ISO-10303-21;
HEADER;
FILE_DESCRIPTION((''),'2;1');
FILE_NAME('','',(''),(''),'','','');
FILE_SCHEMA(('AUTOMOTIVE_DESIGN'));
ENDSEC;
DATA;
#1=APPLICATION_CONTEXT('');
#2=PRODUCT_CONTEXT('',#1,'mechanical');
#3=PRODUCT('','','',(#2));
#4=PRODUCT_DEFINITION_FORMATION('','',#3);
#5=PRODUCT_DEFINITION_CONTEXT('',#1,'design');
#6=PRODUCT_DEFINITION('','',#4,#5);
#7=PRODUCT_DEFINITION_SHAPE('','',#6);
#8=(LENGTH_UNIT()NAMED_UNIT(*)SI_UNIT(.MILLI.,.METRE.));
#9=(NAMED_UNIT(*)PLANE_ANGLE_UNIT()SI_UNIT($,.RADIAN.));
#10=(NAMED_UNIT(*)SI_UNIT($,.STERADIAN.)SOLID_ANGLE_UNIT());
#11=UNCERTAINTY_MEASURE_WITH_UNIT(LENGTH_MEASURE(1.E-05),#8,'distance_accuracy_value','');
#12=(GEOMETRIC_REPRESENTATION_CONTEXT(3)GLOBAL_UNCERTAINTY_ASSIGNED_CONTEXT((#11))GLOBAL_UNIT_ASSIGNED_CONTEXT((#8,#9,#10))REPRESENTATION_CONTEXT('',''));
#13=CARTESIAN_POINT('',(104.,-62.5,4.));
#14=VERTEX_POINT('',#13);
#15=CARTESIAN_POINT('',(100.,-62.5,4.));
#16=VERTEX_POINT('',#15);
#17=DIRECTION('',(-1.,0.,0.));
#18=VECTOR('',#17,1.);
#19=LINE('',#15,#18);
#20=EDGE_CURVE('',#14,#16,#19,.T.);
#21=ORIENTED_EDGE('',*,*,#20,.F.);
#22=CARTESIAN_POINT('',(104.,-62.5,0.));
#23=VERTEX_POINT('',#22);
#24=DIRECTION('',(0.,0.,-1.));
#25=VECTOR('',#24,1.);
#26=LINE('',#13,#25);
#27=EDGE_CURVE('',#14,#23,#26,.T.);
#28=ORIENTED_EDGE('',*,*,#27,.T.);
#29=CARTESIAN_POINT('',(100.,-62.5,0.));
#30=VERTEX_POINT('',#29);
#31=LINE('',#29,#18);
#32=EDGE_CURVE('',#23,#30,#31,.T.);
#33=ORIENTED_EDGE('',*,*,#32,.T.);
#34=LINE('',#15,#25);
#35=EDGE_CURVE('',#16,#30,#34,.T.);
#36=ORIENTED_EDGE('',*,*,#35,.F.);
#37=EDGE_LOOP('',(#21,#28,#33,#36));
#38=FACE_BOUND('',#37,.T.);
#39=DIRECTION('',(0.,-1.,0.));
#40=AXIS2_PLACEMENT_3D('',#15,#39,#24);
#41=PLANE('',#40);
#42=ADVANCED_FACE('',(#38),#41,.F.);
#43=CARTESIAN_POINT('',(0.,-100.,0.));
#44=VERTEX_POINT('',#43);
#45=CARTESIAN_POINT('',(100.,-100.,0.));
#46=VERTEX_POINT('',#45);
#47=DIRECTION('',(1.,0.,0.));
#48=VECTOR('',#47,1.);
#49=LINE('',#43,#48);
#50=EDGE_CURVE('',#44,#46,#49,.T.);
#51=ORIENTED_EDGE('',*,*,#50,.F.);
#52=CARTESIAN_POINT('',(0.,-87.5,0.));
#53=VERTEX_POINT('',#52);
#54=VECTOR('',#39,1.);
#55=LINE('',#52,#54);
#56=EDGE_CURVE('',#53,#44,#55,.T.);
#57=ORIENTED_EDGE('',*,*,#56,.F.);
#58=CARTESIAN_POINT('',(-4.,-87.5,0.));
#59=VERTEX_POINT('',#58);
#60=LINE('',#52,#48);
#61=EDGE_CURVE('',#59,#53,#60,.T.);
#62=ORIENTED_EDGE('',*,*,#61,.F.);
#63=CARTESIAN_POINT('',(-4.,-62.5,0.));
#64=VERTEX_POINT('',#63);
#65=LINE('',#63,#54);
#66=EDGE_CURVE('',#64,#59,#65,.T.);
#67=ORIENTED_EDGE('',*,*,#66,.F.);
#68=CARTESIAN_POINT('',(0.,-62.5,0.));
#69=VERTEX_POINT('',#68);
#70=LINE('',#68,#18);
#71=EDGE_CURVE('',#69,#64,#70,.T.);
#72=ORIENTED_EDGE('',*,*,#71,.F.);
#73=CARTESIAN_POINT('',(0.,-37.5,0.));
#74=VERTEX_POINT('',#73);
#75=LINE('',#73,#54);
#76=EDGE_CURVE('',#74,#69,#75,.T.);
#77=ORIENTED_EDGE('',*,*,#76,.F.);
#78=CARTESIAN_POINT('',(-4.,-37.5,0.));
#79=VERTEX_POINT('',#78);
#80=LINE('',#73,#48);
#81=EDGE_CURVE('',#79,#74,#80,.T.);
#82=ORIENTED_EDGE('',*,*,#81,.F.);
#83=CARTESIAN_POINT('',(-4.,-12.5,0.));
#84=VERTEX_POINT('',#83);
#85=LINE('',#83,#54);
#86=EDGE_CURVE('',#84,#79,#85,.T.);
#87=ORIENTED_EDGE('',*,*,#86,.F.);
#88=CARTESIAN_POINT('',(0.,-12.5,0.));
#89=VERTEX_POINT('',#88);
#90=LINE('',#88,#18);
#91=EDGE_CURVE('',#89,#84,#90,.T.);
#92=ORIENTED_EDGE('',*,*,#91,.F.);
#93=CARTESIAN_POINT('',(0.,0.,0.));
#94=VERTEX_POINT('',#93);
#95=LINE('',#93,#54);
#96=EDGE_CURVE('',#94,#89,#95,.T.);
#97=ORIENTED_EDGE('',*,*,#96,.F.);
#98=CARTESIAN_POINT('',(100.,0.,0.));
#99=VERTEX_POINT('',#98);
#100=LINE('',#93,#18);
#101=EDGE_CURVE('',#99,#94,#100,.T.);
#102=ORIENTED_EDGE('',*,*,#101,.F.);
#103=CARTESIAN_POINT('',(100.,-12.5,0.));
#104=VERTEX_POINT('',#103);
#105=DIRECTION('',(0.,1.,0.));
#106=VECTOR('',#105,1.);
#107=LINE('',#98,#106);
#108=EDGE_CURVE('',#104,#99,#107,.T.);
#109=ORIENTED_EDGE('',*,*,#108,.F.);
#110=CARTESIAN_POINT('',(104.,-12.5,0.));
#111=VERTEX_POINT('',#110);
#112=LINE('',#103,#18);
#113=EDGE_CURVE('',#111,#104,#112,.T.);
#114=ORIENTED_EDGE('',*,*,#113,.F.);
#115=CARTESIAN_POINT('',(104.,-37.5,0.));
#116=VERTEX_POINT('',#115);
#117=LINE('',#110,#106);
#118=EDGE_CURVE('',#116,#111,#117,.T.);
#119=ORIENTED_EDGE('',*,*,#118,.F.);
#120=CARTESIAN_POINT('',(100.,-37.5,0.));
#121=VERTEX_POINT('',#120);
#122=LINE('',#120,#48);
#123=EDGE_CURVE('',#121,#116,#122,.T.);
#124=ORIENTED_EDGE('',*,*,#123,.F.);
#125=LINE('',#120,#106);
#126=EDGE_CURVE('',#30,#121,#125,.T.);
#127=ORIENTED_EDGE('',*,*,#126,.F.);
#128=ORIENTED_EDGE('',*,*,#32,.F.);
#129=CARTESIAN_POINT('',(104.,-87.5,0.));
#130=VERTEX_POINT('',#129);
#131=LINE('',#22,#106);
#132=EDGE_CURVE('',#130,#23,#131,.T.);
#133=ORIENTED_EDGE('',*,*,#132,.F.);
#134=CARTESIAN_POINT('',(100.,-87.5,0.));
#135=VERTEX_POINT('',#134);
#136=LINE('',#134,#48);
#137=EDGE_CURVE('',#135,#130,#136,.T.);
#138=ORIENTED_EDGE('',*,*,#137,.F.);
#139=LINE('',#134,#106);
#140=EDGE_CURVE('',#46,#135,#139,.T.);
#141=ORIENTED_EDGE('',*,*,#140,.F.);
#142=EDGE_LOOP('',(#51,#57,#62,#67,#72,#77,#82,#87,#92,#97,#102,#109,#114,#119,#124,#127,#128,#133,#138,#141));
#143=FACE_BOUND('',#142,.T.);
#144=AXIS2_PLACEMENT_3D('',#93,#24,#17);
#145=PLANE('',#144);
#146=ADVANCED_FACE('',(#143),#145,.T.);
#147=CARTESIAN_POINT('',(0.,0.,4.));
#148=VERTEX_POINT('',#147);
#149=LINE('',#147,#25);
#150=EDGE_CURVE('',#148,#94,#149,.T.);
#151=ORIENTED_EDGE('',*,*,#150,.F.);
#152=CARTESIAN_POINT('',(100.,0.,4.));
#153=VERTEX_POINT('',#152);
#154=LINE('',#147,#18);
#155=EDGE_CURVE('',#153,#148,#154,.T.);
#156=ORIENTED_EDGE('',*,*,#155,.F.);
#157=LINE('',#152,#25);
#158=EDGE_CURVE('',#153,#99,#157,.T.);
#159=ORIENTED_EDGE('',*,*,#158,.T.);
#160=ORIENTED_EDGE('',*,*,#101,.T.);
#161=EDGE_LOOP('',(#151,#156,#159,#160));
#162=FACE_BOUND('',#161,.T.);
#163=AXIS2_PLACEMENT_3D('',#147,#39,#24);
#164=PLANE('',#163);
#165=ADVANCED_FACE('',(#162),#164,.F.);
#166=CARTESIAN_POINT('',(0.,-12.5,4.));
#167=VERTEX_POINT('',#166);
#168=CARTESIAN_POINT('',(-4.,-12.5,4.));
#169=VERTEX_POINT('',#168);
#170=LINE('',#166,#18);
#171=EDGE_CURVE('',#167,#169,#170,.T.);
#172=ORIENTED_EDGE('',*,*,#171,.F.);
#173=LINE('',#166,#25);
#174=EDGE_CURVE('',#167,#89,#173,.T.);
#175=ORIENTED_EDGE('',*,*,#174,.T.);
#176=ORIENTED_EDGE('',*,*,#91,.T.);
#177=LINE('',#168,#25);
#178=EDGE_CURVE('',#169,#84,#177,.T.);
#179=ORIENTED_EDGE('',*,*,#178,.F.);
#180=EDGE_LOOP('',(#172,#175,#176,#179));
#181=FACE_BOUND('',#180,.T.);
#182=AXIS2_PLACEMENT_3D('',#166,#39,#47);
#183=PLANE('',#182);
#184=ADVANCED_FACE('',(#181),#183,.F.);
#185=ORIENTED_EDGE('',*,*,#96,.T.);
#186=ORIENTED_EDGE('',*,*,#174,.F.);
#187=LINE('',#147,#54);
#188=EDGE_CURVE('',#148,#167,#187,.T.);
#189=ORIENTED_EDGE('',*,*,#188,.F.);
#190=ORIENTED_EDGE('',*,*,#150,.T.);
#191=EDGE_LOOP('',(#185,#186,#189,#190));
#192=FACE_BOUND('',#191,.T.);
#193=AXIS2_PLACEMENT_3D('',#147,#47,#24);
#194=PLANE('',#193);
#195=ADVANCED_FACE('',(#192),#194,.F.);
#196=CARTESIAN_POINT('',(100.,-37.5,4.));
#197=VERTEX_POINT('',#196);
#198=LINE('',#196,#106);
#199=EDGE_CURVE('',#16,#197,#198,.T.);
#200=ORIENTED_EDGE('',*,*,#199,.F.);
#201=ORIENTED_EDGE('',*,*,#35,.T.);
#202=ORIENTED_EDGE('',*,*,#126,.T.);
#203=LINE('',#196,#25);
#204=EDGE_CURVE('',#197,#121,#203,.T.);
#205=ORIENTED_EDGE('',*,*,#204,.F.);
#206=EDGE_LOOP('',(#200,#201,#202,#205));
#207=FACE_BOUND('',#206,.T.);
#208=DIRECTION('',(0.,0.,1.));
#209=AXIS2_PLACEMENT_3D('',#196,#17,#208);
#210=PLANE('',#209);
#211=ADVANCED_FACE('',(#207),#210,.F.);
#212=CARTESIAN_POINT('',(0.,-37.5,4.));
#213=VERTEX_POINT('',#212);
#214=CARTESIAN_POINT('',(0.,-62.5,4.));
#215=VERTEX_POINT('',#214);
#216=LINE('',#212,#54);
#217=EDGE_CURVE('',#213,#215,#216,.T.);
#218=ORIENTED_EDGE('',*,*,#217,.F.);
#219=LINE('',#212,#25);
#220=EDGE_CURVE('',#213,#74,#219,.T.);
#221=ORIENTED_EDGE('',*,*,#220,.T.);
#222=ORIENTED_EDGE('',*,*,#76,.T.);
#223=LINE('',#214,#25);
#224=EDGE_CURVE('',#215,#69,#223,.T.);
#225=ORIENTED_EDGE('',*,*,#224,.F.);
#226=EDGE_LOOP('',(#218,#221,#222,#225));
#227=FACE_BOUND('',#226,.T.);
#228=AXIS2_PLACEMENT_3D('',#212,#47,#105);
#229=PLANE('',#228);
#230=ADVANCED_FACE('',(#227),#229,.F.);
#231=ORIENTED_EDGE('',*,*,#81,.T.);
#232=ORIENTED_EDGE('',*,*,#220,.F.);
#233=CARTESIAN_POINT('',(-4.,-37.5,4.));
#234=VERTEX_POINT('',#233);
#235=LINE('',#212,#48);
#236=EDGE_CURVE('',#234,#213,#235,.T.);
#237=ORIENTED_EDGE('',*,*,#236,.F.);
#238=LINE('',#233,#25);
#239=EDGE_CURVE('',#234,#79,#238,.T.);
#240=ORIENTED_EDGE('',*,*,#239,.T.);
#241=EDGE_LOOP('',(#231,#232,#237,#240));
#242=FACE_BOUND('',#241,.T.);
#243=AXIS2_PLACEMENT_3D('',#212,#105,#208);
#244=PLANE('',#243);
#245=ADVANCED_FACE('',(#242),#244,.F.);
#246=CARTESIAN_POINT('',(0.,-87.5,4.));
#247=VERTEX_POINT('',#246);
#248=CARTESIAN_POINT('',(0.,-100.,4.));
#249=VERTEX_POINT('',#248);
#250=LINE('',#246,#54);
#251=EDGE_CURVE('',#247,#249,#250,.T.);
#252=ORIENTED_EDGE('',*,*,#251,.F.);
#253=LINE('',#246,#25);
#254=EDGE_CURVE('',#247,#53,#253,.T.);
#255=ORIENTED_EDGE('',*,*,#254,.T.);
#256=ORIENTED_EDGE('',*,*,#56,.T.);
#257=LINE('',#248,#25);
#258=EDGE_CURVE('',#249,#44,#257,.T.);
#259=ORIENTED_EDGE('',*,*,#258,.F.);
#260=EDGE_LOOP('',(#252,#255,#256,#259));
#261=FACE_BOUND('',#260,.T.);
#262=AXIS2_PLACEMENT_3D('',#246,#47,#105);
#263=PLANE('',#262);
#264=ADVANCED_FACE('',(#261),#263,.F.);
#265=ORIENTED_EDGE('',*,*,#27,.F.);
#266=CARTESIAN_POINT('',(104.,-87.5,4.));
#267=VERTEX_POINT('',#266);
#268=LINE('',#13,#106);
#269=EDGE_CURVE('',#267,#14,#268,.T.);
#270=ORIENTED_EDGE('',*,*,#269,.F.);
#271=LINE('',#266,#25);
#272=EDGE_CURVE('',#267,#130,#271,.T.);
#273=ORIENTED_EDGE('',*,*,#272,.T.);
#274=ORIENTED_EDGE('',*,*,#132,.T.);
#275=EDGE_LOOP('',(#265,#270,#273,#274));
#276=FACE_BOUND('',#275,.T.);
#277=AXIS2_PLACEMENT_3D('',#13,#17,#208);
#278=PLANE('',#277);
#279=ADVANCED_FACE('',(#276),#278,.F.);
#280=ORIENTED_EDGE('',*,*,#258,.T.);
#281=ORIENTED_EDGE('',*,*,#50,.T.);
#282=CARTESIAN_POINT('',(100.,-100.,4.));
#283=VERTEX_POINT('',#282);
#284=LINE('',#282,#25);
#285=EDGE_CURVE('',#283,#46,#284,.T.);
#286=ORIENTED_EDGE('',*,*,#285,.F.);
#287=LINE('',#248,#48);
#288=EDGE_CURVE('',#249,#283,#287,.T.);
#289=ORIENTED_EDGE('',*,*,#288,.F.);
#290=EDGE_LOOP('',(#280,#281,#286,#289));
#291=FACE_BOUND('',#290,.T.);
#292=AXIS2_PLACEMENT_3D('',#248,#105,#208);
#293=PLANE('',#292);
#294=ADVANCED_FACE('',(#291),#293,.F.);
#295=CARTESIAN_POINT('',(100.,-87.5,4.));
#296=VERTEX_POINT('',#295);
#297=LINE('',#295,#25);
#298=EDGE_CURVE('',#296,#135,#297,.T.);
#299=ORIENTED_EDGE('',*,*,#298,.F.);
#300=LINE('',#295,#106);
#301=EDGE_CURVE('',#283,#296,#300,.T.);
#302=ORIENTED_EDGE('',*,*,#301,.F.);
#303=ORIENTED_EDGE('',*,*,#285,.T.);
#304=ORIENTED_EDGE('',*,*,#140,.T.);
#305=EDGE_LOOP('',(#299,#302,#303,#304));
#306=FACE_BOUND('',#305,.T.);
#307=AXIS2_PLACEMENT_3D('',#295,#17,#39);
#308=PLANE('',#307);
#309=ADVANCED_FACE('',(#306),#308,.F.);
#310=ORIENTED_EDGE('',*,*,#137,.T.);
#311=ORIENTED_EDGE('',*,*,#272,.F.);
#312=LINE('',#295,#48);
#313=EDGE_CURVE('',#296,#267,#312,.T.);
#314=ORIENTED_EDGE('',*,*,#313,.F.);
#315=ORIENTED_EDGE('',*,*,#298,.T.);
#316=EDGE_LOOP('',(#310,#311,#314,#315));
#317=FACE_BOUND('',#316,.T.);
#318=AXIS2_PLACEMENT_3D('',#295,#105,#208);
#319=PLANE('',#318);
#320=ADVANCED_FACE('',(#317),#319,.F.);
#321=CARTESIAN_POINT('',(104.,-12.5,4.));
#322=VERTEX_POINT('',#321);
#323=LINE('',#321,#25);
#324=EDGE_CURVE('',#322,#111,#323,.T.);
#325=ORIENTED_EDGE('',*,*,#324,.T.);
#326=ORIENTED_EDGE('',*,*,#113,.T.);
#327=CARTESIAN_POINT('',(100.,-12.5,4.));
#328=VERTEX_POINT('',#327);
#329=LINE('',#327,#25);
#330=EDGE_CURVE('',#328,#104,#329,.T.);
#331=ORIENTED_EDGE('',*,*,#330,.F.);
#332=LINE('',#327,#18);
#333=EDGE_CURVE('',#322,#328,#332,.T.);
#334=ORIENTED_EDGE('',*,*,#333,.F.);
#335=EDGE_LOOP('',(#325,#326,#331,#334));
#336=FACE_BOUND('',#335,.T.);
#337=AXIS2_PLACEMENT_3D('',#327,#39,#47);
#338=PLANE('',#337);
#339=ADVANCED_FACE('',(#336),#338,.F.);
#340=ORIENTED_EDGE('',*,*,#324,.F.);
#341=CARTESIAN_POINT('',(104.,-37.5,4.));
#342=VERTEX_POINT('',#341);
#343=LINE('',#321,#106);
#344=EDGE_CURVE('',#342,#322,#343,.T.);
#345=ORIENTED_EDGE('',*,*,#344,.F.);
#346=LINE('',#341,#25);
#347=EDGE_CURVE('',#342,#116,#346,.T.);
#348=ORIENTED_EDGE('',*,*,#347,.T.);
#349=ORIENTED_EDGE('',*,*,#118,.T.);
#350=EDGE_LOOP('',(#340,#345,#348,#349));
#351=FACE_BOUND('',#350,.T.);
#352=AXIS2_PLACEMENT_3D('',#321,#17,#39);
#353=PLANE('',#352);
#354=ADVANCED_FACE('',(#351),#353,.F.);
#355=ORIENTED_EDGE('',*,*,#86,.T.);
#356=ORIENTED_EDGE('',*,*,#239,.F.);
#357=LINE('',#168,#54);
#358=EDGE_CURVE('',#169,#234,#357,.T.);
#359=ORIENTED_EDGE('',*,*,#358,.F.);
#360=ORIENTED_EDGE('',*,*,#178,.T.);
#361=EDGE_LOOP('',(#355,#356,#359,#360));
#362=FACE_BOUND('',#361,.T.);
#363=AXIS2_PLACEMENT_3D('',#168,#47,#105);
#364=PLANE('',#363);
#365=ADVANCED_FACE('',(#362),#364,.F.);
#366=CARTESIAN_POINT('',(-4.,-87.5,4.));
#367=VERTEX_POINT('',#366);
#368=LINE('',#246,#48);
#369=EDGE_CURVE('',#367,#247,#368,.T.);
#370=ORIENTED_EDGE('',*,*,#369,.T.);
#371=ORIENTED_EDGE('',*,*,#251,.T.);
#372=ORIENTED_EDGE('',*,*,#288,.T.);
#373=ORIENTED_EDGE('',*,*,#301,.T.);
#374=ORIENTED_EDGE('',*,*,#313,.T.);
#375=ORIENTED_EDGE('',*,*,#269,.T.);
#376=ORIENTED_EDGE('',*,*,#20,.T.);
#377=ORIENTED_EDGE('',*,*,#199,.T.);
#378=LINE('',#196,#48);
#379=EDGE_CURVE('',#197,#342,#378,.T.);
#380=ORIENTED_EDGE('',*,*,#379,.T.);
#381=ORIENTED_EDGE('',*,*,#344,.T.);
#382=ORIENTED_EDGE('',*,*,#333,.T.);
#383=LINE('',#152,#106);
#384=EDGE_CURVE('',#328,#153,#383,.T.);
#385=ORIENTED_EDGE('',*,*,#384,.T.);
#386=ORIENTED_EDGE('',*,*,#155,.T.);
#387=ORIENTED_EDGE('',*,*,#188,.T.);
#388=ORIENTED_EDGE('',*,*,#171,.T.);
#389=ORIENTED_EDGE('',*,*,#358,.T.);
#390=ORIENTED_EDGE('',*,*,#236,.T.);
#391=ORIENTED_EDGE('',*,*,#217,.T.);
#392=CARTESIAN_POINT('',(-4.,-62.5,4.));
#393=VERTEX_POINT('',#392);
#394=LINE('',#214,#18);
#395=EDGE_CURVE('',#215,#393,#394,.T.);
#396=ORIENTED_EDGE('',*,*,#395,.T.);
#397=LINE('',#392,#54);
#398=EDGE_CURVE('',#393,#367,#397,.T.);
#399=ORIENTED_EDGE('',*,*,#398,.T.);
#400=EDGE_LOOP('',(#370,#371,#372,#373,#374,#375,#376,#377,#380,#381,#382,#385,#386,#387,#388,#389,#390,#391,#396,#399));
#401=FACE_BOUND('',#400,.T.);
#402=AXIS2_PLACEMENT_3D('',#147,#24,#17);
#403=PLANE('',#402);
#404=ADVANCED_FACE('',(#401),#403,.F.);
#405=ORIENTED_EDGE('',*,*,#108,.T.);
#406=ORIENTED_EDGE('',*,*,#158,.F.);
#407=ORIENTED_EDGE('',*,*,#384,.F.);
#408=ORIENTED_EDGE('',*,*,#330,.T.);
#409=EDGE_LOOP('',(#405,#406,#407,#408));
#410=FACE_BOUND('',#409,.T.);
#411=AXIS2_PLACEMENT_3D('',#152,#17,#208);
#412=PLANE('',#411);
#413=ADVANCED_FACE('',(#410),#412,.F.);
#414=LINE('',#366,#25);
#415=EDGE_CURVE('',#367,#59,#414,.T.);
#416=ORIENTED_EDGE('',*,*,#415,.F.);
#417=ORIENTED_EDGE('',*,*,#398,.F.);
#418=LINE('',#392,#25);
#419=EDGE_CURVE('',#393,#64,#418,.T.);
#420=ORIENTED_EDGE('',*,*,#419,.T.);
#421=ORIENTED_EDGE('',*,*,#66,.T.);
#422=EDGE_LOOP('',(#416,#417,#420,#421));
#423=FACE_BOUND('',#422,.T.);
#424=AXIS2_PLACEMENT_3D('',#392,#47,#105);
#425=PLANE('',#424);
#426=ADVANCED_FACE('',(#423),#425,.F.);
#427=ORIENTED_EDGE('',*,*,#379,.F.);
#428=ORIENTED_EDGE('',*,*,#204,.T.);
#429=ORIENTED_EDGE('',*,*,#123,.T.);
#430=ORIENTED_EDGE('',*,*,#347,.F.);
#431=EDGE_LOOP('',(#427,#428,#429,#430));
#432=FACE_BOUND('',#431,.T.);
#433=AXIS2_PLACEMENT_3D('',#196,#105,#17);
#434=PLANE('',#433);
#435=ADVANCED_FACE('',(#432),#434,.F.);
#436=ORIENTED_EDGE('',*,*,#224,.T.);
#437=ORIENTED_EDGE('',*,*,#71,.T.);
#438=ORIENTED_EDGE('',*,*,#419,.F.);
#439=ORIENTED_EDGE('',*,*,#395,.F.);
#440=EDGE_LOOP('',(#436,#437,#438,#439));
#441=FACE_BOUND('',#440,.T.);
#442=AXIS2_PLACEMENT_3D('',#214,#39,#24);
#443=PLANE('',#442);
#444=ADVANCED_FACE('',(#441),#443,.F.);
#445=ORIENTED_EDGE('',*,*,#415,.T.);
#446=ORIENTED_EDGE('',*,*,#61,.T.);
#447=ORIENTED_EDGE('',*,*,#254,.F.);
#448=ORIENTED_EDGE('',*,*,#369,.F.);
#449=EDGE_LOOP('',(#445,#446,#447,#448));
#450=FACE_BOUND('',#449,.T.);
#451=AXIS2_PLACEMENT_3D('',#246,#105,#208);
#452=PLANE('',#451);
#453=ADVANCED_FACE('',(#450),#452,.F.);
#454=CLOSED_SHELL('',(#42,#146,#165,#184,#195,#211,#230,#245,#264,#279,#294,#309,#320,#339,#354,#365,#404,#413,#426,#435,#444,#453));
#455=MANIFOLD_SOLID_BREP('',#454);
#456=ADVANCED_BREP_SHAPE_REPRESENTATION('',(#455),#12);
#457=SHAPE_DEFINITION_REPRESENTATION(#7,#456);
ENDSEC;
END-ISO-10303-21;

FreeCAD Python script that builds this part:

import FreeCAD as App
import Part
import Sketcher
Q = App.Units.Quantity


def add_polygon(sketch, points):
    """Adds a closed chain of lines whose ends are joined by coincident constraints."""
    first, n = sketch.GeometryCount, len(points)
    for a, b in zip(points, points[1:] + points[:1]):
        sketch.addGeometry(Part.LineSegment(App.Vector(*a, 0), App.Vector(*b, 0)), False)
    for i in range(n):
        sketch.addConstraint(Sketcher.Constraint("Coincident", first + i, 2, first + (i + 1) % n, 1))

doc = App.newDocument("Part")
params = doc.addObject("Spreadsheet::Sheet", "Params")
for row, (alias, value) in enumerate([
    ("sketch1_width", "100 mm"),
    ("sketch1_width2", "4 mm"),
    ("sketch1_height", "25 mm"),
    ("sketch1_height2", "12.5 mm"),
    ("pad1_length", "4 mm"),
], start=1):
    params.set(f"A{row}", alias)
    params.set(f"B{row}", "=" + value)
    params.setAlias(f"B{row}", alias)

body = doc.addObject("PartDesign::Body", "Body")

# Sketch on XY plane
sketch1 = doc.addObject("Sketcher::SketchObject", "Sketch")
body.addObject(sketch1)
sketch1.AttachmentSupport = (doc.XY_Plane, [""])
sketch1.MapMode = "FlatFace"
add_polygon(sketch1, [(100, 0), (0, 0), (0, -12.5), (-4, -12.5), (-4, -37.5), (0, -37.5), (0, -62.5), (-4, -62.5), (-4, -87.5), (0, -87.5), (0, -100), (100, -100), (100, -87.5), (104, -87.5), (104, -62.5), (100, -62.5), (100, -37.5), (104, -37.5), (104, -12.5), (100, -12.5)])  # lines 0-19
sketch1.addConstraint(Sketcher.Constraint("Horizontal", 0))
sketch1.addConstraint(Sketcher.Constraint("Vertical", 1))
sketch1.addConstraint(Sketcher.Constraint("Horizontal", 2))
sketch1.addConstraint(Sketcher.Constraint("Vertical", 3))
sketch1.addConstraint(Sketcher.Constraint("Horizontal", 4))
sketch1.addConstraint(Sketcher.Constraint("Vertical", 5))
sketch1.addConstraint(Sketcher.Constraint("Horizontal", 6))
sketch1.addConstraint(Sketcher.Constraint("Vertical", 7))
sketch1.addConstraint(Sketcher.Constraint("Horizontal", 8))
sketch1.addConstraint(Sketcher.Constraint("Vertical", 9))
sketch1.addConstraint(Sketcher.Constraint("Horizontal", 10))
sketch1.addConstraint(Sketcher.Constraint("Vertical", 11))
sketch1.addConstraint(Sketcher.Constraint("Horizontal", 12))
sketch1.addConstraint(Sketcher.Constraint("Vertical", 13))
sketch1.addConstraint(Sketcher.Constraint("Horizontal", 14))
sketch1.addConstraint(Sketcher.Constraint("Vertical", 15))
sketch1.addConstraint(Sketcher.Constraint("Horizontal", 16))
sketch1.addConstraint(Sketcher.Constraint("Vertical", 17))
sketch1.addConstraint(Sketcher.Constraint("Horizontal", 18))
sketch1.addConstraint(Sketcher.Constraint("Vertical", 19))
sketch1.addConstraint(Sketcher.Constraint("Coincident", 0, 2, -1, 1))
sketch1.addConstraint(Sketcher.Constraint("PointOnObject", 4, 2, -2))
sketch1.addConstraint(Sketcher.Constraint("PointOnObject", 8, 2, -2))
sketch1.addConstraint(Sketcher.Constraint("Horizontal", 8, 2, 11, 2))
sketch1.addConstraint(Sketcher.Constraint("Horizontal", 6, 2, 13, 2))
sketch1.addConstraint(Sketcher.Constraint("Horizontal", 4, 2, 15, 2))
sketch1.addConstraint(Sketcher.Constraint("Horizontal", 2, 2, 17, 2))
sketch1.addConstraint(Sketcher.Constraint("Vertical", 3, 2, 6, 2))
sketch1.addConstraint(Sketcher.Constraint("Vertical", 11, 2, 14, 2))
sketch1.addConstraint(Sketcher.Constraint("Vertical", 13, 2, 16, 2))
sketch1.addConstraint(Sketcher.Constraint("Vertical", 15, 2, 18, 2))
sketch1.addConstraint(Sketcher.Constraint("Equal", 8, 12))
sketch1.addConstraint(Sketcher.Constraint("Equal", 3, 5))
sketch1.addConstraint(Sketcher.Constraint("Equal", 5, 7))
sketch1.addConstraint(Sketcher.Constraint("Equal", 1, 9))
sketch1.addConstraint(Sketcher.Constraint("DistanceX", 0, 2, 0, 1, Q("100 mm")))
sketch1.addConstraint(Sketcher.Constraint("DistanceX", 2, 2, 2, 1, Q("4 mm")))
sketch1.addConstraint(Sketcher.Constraint("DistanceY", 3, 2, 3, 1, Q("25 mm")))
sketch1.addConstraint(Sketcher.Constraint("DistanceY", 1, 2, 1, 1, Q("12.5 mm")))
sketch1.setExpression("Constraints[55]", "Params.sketch1_width")
sketch1.setExpression("Constraints[56]", "Params.sketch1_width2")
sketch1.setExpression("Constraints[57]", "Params.sketch1_height")
sketch1.setExpression("Constraints[58]", "Params.sketch1_height2")
pad1 = doc.addObject("PartDesign::Pad", "Pad")
body.addObject(pad1)
pad1.Profile = sketch1
pad1.setExpression("Length", "Params.pad1_length")

doc.recompute()
